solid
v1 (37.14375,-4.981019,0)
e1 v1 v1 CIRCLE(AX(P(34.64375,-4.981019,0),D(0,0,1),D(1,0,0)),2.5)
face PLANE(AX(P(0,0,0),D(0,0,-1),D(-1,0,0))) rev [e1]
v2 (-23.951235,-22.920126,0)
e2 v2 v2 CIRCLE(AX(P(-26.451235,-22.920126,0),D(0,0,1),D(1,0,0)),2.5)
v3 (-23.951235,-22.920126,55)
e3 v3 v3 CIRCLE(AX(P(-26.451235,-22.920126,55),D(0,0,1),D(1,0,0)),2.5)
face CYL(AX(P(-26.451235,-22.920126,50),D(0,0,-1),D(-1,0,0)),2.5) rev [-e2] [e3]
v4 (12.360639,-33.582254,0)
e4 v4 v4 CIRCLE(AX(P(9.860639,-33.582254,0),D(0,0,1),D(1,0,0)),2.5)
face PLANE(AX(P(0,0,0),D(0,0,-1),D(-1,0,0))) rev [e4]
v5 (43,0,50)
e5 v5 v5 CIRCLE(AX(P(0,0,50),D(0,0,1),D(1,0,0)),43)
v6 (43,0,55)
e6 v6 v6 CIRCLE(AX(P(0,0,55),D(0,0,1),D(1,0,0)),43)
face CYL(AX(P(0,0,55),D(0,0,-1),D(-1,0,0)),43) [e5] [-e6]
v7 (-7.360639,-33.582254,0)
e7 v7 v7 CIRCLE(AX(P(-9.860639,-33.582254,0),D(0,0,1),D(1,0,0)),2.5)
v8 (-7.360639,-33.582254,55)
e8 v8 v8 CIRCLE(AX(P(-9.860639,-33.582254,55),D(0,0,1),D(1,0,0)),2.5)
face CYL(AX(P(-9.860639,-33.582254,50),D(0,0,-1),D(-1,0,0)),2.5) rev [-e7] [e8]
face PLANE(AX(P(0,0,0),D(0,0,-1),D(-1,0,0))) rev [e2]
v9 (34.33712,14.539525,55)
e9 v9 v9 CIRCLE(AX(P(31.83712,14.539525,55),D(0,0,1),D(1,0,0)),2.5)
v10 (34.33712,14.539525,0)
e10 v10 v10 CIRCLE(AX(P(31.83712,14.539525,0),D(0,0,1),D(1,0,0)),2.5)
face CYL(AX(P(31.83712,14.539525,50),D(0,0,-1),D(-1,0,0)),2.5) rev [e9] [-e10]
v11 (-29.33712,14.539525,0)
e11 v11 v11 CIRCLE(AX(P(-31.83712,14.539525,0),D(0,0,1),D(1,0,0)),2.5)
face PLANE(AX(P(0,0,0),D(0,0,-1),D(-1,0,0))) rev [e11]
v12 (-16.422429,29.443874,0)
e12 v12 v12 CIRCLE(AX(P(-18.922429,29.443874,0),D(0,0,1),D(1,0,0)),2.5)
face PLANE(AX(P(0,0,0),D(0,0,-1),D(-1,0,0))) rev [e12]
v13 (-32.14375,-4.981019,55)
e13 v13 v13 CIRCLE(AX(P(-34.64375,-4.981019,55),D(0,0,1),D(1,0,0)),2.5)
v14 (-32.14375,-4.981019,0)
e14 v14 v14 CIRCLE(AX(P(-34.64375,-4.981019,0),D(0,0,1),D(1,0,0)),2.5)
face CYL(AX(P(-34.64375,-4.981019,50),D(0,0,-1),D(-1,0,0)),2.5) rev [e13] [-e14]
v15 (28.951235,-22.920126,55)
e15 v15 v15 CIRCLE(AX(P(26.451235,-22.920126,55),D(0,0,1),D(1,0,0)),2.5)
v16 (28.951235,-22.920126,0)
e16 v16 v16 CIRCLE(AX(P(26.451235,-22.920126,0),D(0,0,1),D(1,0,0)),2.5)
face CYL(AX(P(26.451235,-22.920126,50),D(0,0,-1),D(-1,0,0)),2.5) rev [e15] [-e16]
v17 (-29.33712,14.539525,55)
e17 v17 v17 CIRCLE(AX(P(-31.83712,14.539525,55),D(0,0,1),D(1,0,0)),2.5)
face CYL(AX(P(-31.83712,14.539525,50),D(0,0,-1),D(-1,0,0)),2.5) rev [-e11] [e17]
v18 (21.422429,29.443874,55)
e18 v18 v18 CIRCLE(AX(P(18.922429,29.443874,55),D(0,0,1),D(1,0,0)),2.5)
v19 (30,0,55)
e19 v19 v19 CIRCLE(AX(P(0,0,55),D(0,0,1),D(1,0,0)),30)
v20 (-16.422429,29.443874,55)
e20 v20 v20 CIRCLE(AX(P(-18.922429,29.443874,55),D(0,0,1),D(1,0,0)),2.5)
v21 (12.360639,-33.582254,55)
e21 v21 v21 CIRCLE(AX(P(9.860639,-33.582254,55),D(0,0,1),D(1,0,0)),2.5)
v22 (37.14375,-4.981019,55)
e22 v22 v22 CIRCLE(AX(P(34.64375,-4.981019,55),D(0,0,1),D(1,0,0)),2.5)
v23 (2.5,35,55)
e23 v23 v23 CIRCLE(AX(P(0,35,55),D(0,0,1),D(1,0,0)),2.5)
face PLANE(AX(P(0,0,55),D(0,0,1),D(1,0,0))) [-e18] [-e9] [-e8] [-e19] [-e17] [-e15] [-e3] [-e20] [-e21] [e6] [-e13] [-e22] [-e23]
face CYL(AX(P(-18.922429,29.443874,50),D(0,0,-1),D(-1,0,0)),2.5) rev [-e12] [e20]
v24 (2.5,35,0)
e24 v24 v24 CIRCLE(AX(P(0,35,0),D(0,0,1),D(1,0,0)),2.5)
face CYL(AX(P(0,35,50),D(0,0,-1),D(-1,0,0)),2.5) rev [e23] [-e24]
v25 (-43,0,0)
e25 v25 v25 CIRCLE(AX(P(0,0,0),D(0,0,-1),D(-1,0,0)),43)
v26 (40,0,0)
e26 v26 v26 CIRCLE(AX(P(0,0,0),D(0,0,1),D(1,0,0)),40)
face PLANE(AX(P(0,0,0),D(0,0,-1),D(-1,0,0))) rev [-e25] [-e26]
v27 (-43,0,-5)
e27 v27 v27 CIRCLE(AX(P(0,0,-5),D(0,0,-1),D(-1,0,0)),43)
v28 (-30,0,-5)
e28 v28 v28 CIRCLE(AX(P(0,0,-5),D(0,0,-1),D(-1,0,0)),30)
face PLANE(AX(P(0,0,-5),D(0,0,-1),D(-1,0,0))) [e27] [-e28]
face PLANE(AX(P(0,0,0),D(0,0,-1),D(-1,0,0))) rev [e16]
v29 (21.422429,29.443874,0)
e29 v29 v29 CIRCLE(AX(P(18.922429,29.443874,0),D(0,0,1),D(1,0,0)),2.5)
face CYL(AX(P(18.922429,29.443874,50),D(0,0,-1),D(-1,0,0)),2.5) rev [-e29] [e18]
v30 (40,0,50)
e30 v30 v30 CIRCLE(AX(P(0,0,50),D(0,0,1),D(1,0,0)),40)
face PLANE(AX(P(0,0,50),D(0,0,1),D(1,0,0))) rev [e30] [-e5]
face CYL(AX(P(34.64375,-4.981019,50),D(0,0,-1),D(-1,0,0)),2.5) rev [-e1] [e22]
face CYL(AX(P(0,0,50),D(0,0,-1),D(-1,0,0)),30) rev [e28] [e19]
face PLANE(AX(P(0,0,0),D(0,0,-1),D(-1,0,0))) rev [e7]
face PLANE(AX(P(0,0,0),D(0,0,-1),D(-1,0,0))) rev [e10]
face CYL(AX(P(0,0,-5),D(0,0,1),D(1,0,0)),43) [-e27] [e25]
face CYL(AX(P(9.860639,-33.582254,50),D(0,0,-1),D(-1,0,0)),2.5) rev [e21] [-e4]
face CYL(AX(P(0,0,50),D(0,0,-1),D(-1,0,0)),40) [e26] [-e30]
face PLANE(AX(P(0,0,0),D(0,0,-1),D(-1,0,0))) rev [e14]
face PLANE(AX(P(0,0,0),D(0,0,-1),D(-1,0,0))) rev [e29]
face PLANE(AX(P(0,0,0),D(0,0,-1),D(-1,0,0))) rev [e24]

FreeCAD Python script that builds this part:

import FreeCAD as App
import Part
import Sketcher

V = App.Vector
Q = App.Units.Quantity

doc = App.newDocument("Part")
params = doc.addObject("Spreadsheet::Sheet", "Params")
for row, (alias, value) in enumerate([
    ("sketch1_diameter", "80 mm"),
    ("sketch1_diameter2", "5 mm"),
    ("sketch1_diameter3", "60 mm"),
    ("pad1_length", "50 mm"),
    ("sketch2_diameter", "86 mm"),
    ("sketch2_diameter2", "60 mm"),
    ("pad2_length", "5 mm"),
    ("sketch3_diameter", "86 mm"),
    ("sketch3_diameter2", "5 mm"),
    ("sketch3_diameter3", "60 mm"),
    ("pad3_length", "5 mm"),
], start=1):
    params.set(f"A{row}", alias)
    params.set(f"B{row}", "=" + value)
    params.setAlias(f"B{row}", alias)

body = doc.addObject("PartDesign::Body", "Body")

# Sketch on XY plane
sketch1 = body.newObject("Sketcher::SketchObject", "Sketch")
sketch1.AttachmentSupport = (doc.getObject("XY_Plane"), [""])
sketch1.MapMode = "FlatFace"
sketch1.addGeometry(Part.Circle(V(0, 0, 0), V(0, 0, 1), 40), False)
sketch1.addGeometry(Part.Circle(V(-26.451235, -22.920126, 0), V(0, 0, 1), 2.5), False)
sketch1.addGeometry(Part.Circle(V(-9.860639, -33.582254, 0), V(0, 0, 1), 2.5), False)
sketch1.addGeometry(Part.Circle(V(-34.64375, -4.981019, 0), V(0, 0, 1), 2.5), False)
sketch1.addGeometry(Part.Circle(V(9.860639, -33.582254, 0), V(0, 0, 1), 2.5), False)
sketch1.addGeometry(Part.Circle(V(26.451235, -22.920126, 0), V(0, 0, 1), 2.5), False)
sketch1.addGeometry(Part.Circle(V(0, 0, 0), V(0, 0, 1), 30), False)
sketch1.addGeometry(Part.Circle(V(34.64375, -4.981019, 0), V(0, 0, 1), 2.5), False)
sketch1.addGeometry(Part.Circle(V(-31.83712, 14.539525, 0), V(0, 0, 1), 2.5), False)
sketch1.addGeometry(Part.Circle(V(-18.922429, 29.443874, 0), V(0, 0, 1), 2.5), False)
sketch1.addGeometry(Part.Circle(V(31.83712, 14.539525, 0), V(0, 0, 1), 2.5), False)
sketch1.addGeometry(Part.Circle(V(0, 35, 0), V(0, 0, 1), 2.5), False)
sketch1.addGeometry(Part.Circle(V(18.922429, 29.443874, 0), V(0, 0, 1), 2.5), False)
sketch1.addConstraint(Sketcher.Constraint("Coincident", 0, 3, -1, 1))
sketch1.addConstraint(Sketcher.Constraint("Coincident", 6, 3, -1, 1))
sketch1.addConstraint(Sketcher.Constraint("Equal", 1, 2))
sketch1.addConstraint(Sketcher.Constraint("Equal", 2, 3))
sketch1.addConstraint(Sketcher.Constraint("Equal", 3, 4))
sketch1.addConstraint(Sketcher.Constraint("Equal", 4, 5))
sketch1.addConstraint(Sketcher.Constraint("Equal", 5, 7))
sketch1.addConstraint(Sketcher.Constraint("Equal", 7, 8))
sketch1.addConstraint(Sketcher.Constraint("Equal", 8, 9))
sketch1.addConstraint(Sketcher.Constraint("Equal", 9, 10))
sketch1.addConstraint(Sketcher.Constraint("Equal", 10, 11))
sketch1.addConstraint(Sketcher.Constraint("Equal", 11, 12))
sketch1.addConstraint(Sketcher.Constraint("Symmetric", 2, 3, 4, 3, -2))
sketch1.addConstraint(Sketcher.Constraint("Symmetric", 1, 3, 5, 3, -2))
sketch1.addConstraint(Sketcher.Constraint("Symmetric", 3, 3, 7, 3, -2))
sketch1.addConstraint(Sketcher.Constraint("Symmetric", 8, 3, 10, 3, -2))
sketch1.addConstraint(Sketcher.Constraint("Symmetric", 9, 3, 12, 3, -2))
sketch1.addConstraint(Sketcher.Constraint("PointOnObject", 11, 3, -2))
sketch1.addConstraint(Sketcher.Constraint("Diameter", 0, Q("80 mm")))
sketch1.addConstraint(Sketcher.Constraint("Diameter", 1, Q("5 mm")))
sketch1.addConstraint(Sketcher.Constraint("Diameter", 6, Q("60 mm")))
sketch1.addConstraint(Sketcher.Constraint("DistanceY", -1, 1, 11, 3, Q("35 mm")))
sketch1.addConstraint(Sketcher.Constraint("DistanceY", 1, 3, 9, 3, Q("52.363999 mm")))
sketch1.addConstraint(Sketcher.Constraint("DistanceX", 2, 3, -1, 1, Q("9.860639 mm")))
sketch1.addConstraint(Sketcher.Constraint("DistanceX", 3, 3, -1, 1, Q("34.64375 mm")))
sketch1.addConstraint(Sketcher.Constraint("DistanceY", 3, 3, -1, 1, Q("4.981019 mm")))
sketch1.addConstraint(Sketcher.Constraint("DistanceX", 8, 3, -1, 1, Q("31.83712 mm")))
sketch1.addConstraint(Sketcher.Constraint("DistanceX", 9, 3, -1, 1, Q("18.922429 mm")))
sketch1.addConstraint(Sketcher.Constraint("DistanceY", 2, 3, 1, 3, Q("10.662128 mm")))
sketch1.addConstraint(Sketcher.Constraint("DistanceX", 1, 3, 5, 3, Q("52.90247 mm")))
sketch1.addConstraint(Sketcher.Constraint("DistanceY", 1, 3, 8, 3, Q("37.459651 mm")))
sketch1.addConstraint(Sketcher.Constraint("DistanceY", 1, 3, -1, 1, Q("22.920126 mm")))
sketch1.setExpression("Constraints[18]", "Params.sketch1_diameter")
sketch1.setExpression("Constraints[19]", "Params.sketch1_diameter2")
sketch1.setExpression("Constraints[20]", "Params.sketch1_diameter3")
pad1 = body.newObject("PartDesign::Pad", "Pad")
pad1.Profile = sketch1
pad1.setExpression("Length", "Params.pad1_length")

# Sketch on XY plane
sketch2 = body.newObject("Sketcher::SketchObject", "Sketch001")
sketch2.AttachmentSupport = (doc.getObject("XY_Plane"), [""])
sketch2.MapMode = "FlatFace"
sketch2.addGeometry(Part.Circle(V(0, 0, 0), V(0, 0, 1), 43), False)
sketch2.addGeometry(Part.Circle(V(0, 0, 0), V(0, 0, 1), 30), False)
sketch2.addConstraint(Sketcher.Constraint("Coincident", 0, 3, -1, 1))
sketch2.addConstraint(Sketcher.Constraint("Coincident", 1, 3, -1, 1))
sketch2.addConstraint(Sketcher.Constraint("Diameter", 0, Q("86 mm")))
sketch2.addConstraint(Sketcher.Constraint("Diameter", 1, Q("60 mm")))
sketch2.setExpression("Constraints[2]", "Params.sketch2_diameter")
sketch2.setExpression("Constraints[3]", "Params.sketch2_diameter2")
pad2 = body.newObject("PartDesign::Pad", "Pad001")
pad2.Profile = sketch2
pad2.setExpression("Length", "Params.pad2_length")
pad2.Reversed = True

# Sketch on XY plane
sketch3 = body.newObject("Sketcher::SketchObject", "Sketch002")
sketch3.AttachmentSupport = (doc.getObject("XY_Plane"), [""])
sketch3.MapMode = "FlatFace"
sketch3.AttachmentOffset = App.Placement(V(0, 0, 50), App.Rotation())
sketch3.addGeometry(Part.Circle(V(0, 0, 0), V(0, 0, 1), 43), False)
sketch3.addGeometry(Part.Circle(V(-26.451235, -22.920126, 0), V(0, 0, 1), 2.5), False)
sketch3.addGeometry(Part.Circle(V(-9.860639, -33.582254, 0), V(0, 0, 1), 2.5), False)
sketch3.addGeometry(Part.Circle(V(-34.64375, -4.981019, 0), V(0, 0, 1), 2.5), False)
sketch3.addGeometry(Part.Circle(V(9.860639, -33.582254, 0), V(0, 0, 1), 2.5), False)
sketch3.addGeometry(Part.Circle(V(26.451235, -22.920126, 0), V(0, 0, 1), 2.5), False)
sketch3.addGeometry(Part.Circle(V(0, 0, 0), V(0, 0, 1), 30), False)
sketch3.addGeometry(Part.Circle(V(34.64375, -4.981019, 0), V(0, 0, 1), 2.5), False)
sketch3.addGeometry(Part.Circle(V(-31.83712, 14.539525, 0), V(0, 0, 1), 2.5), False)
sketch3.addGeometry(Part.Circle(V(-18.922429, 29.443874, 0), V(0, 0, 1), 2.5), False)
sketch3.addGeometry(Part.Circle(V(31.83712, 14.539525, 0), V(0, 0, 1), 2.5), False)
sketch3.addGeometry(Part.Circle(V(0, 35, 0), V(0, 0, 1), 2.5), False)
sketch3.addGeometry(Part.Circle(V(18.922429, 29.443874, 0), V(0, 0, 1), 2.5), False)
sketch3.addConstraint(Sketcher.Constraint("Coincident", 0, 3, -1, 1))
sketch3.addConstraint(Sketcher.Constraint("Coincident", 6, 3, -1, 1))
sketch3.addConstraint(Sketcher.Constraint("Equal", 1, 2))
sketch3.addConstraint(Sketcher.Constraint("Equal", 2, 3))
sketch3.addConstraint(Sketcher.Constraint("Equal", 3, 4))
sketch3.addConstraint(Sketcher.Constraint("Equal", 4, 5))
sketch3.addConstraint(Sketcher.Constraint("Equal", 5, 7))
sketch3.addConstraint(Sketcher.Constraint("Equal", 7, 8))
sketch3.addConstraint(Sketcher.Constraint("Equal", 8, 9))
sketch3.addConstraint(Sketcher.Constraint("Equal", 9, 10))
sketch3.addConstraint(Sketcher.Constraint("Equal", 10, 11))
sketch3.addConstraint(Sketcher.Constraint("Equal", 11, 12))
sketch3.addConstraint(Sketcher.Constraint("Symmetric", 2, 3, 4, 3, -2))
sketch3.addConstraint(Sketcher.Constraint("Symmetric", 1, 3, 5, 3, -2))
sketch3.addConstraint(Sketcher.Constraint("Symmetric", 3, 3, 7, 3, -2))
sketch3.addConstraint(Sketcher.Constraint("Symmetric", 8, 3, 10, 3, -2))
sketch3.addConstraint(Sketcher.Constraint("Symmetric", 9, 3, 12, 3, -2))
sketch3.addConstraint(Sketcher.Constraint("PointOnObject", 11, 3, -2))
sketch3.addConstraint(Sketcher.Constraint("Diameter", 0, Q("86 mm")))
sketch3.addConstraint(Sketcher.Constraint("Diameter", 1, Q("5 mm")))
sketch3.addConstraint(Sketcher.Constraint("Diameter", 6, Q("60 mm")))
sketch3.addConstraint(Sketcher.Constraint("DistanceY", -1, 1, 11, 3, Q("35 mm")))
sketch3.addConstraint(Sketcher.Constraint("DistanceY", 1, 3, 9, 3, Q("52.363999 mm")))
sketch3.addConstraint(Sketcher.Constraint("DistanceX", 2, 3, -1, 1, Q("9.860639 mm")))
sketch3.addConstraint(Sketcher.Constraint("DistanceX", 3, 3, -1, 1, Q("34.64375 mm")))
sketch3.addConstraint(Sketcher.Constraint("DistanceY", 3, 3, -1, 1, Q("4.981019 mm")))
sketch3.addConstraint(Sketcher.Constraint("DistanceX", 8, 3, -1, 1, Q("31.83712 mm")))
sketch3.addConstraint(Sketcher.Constraint("DistanceX", 9, 3, -1, 1, Q("18.922429 mm")))
sketch3.addConstraint(Sketcher.Constraint("DistanceY", 2, 3, 1, 3, Q("10.662128 mm")))
sketch3.addConstraint(Sketcher.Constraint("DistanceX", 1, 3, 5, 3, Q("52.90247 mm")))
sketch3.addConstraint(Sketcher.Constraint("DistanceY", 1, 3, 8, 3, Q("37.459651 mm")))
sketch3.addConstraint(Sketcher.Constraint("DistanceY", 1, 3, -1, 1, Q("22.920126 mm")))
sketch3.setExpression("Constraints[18]", "Params.sketch3_diameter")
sketch3.setExpression("Constraints[19]", "Params.sketch3_diameter2")
sketch3.setExpression("Constraints[20]", "Params.sketch3_diameter3")
pad3 = body.newObject("PartDesign::Pad", "Pad002")
pad3.Profile = sketch3
pad3.setExpression("Length", "Params.pad3_length")

doc.recompute()
